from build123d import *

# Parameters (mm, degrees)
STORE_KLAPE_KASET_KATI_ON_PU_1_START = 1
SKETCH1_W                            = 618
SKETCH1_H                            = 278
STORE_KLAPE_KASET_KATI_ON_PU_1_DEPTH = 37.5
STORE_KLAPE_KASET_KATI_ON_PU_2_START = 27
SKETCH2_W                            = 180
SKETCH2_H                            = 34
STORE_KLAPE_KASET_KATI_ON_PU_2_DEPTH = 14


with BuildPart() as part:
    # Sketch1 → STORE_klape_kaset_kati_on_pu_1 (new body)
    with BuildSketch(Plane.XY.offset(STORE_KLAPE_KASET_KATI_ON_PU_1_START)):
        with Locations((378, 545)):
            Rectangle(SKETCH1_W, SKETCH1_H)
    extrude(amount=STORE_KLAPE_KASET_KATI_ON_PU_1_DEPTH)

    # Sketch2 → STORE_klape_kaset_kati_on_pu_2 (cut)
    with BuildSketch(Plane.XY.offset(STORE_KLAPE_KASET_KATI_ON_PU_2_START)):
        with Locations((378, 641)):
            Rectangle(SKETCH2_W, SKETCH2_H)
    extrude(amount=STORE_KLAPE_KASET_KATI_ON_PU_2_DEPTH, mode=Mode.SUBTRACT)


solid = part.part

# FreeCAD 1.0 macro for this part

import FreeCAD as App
import Part
import Sketcher

V = App.Vector
Q = App.Units.Quantity


def add_polygon(sketch, points):
    """Adds a closed chain of lines whose ends are joined by coincident constraints."""
    first, n = sketch.GeometryCount, len(points)
    for a, b in zip(points, points[1:] + points[:1]):
        sketch.addGeometry(Part.LineSegment(App.Vector(*a, 0), App.Vector(*b, 0)), False)
    for i in range(n):
        sketch.addConstraint(Sketcher.Constraint("Coincident", first + i, 2, first + (i + 1) % n, 1))

doc = App.newDocument("Part")
body = doc.addObject("PartDesign::Body", "Body")

sketch1 = body.newObject("Sketcher::SketchObject", "Sketch")
sketch1.AttachmentSupport = (doc.getObject("XY_Plane"), [""])
sketch1.MapMode = "FlatFace"
sketch1.AttachmentOffset = App.Placement(V(0, 0, 1), App.Rotation())
add_polygon(sketch1, [(69, 684), (69, 406), (687, 406), (687, 684)])
sketch1.addConstraint(Sketcher.Constraint("Vertical", 0))
sketch1.addConstraint(Sketcher.Constraint("Horizontal", 1))
sketch1.addConstraint(Sketcher.Constraint("Vertical", 2))
sketch1.addConstraint(Sketcher.Constraint("Horizontal", 3))
sketch1.addConstraint(Sketcher.Constraint("DistanceX", 1, 1, 1, 2, Q("618 mm")))
sketch1.addConstraint(Sketcher.Constraint("DistanceY", 0, 2, 0, 1, Q("278 mm")))
sketch1.addConstraint(Sketcher.Constraint("DistanceX", -1, 1, 0, 2, Q("69 mm")))
sketch1.addConstraint(Sketcher.Constraint("DistanceY", -1, 1, 0, 2, Q("406 mm")))
pad1 = body.newObject("PartDesign::Pad", "Pad")
pad1.Profile = sketch1
pad1.Length = 37.5

sketch2 = body.newObject("Sketcher::SketchObject", "Sketch001")
sketch2.AttachmentSupport = (doc.getObject("XY_Plane"), [""])
sketch2.MapMode = "FlatFace"
sketch2.AttachmentOffset = App.Placement(V(0, 0, 27), App.Rotation())
add_polygon(sketch2, [(288, 658), (288, 624), (468, 624), (468, 658)])
sketch2.addConstraint(Sketcher.Constraint("Vertical", 0))
sketch2.addConstraint(Sketcher.Constraint("Horizontal", 1))
sketch2.addConstraint(Sketcher.Constraint("Vertical", 2))
sketch2.addConstraint(Sketcher.Constraint("Horizontal", 3))
sketch2.addConstraint(Sketcher.Constraint("DistanceX", 1, 1, 1, 2, Q("180 mm")))
sketch2.addConstraint(Sketcher.Constraint("DistanceY", 0, 2, 0, 1, Q("34 mm")))
sketch2.addConstraint(Sketcher.Constraint("DistanceX", -1, 1, 0, 2, Q("288 mm")))
sketch2.addConstraint(Sketcher.Constraint("DistanceY", -1, 1, 0, 2, Q("624 mm")))
pocket1 = body.newObject("PartDesign::Pocket", "Pocket")
pocket1.Profile = sketch2
pocket1.Length = 14
pocket1.Reversed = True

doc.recompute()
